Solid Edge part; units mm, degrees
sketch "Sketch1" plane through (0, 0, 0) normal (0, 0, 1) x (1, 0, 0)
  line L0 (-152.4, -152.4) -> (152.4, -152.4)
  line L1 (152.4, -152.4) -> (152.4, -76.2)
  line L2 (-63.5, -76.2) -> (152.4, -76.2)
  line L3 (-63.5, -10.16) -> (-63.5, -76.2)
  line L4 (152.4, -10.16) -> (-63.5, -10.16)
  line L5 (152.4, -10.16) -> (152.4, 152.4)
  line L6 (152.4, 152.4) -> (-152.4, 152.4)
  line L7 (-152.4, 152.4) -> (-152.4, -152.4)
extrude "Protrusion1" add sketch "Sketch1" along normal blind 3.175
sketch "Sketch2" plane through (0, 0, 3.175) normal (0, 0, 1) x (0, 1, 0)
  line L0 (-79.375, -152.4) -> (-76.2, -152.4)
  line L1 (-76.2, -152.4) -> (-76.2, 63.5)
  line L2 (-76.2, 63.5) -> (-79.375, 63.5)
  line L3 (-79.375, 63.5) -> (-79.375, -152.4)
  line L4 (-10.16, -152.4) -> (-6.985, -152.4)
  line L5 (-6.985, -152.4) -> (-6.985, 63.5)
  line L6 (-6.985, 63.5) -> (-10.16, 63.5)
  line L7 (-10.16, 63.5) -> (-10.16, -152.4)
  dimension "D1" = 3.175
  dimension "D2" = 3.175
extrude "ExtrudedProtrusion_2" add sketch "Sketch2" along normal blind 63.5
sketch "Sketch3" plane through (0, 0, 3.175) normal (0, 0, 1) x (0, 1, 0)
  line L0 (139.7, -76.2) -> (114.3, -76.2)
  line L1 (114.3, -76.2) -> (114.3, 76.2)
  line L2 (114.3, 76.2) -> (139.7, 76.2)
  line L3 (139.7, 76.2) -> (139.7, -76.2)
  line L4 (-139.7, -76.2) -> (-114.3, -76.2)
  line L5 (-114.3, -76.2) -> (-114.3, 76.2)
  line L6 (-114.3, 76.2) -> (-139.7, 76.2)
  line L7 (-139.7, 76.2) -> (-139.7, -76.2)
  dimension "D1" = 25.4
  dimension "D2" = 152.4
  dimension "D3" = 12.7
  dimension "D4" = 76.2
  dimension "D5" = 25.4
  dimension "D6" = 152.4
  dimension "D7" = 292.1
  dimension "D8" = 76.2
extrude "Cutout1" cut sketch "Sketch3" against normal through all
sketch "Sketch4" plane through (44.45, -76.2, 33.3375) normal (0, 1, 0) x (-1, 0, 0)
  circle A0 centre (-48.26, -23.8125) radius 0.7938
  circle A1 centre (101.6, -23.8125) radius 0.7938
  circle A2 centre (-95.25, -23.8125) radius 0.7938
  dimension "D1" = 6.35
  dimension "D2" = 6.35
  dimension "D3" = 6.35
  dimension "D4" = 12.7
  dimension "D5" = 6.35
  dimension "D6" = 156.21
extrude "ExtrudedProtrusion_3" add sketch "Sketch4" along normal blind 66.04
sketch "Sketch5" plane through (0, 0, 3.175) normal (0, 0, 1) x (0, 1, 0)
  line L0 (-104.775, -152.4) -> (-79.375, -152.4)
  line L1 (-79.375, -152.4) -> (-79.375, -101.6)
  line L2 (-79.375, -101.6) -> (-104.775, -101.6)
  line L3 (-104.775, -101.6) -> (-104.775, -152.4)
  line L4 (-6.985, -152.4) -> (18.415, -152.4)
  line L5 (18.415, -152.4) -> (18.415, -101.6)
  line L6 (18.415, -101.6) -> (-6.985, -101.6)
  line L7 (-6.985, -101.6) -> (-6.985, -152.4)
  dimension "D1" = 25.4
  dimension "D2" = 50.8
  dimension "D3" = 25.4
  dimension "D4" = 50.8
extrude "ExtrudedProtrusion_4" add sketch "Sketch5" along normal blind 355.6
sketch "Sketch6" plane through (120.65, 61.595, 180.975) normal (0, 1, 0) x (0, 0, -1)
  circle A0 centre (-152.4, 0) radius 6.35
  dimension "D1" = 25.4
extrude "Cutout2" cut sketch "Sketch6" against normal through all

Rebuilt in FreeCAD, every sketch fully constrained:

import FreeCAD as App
import Part
import Sketcher
Q = App.Units.Quantity

doc = App.newDocument("Part")
body = doc.addObject("PartDesign::Body", "Body")

# Sketch on XY plane
sketch1 = body.newObject("Sketcher::SketchObject", "Sketch")
sketch1.AttachmentSupport = (doc.getObject("XY_Plane"), [""])
sketch1.MapMode = "FlatFace"
sketch1.addGeometry([
    Part.LineSegment(App.Vector(-152.4, 152.4, 0), App.Vector(-152.4, -152.4, 0)),  # 0
    Part.LineSegment(App.Vector(-152.4, -152.4, 0), App.Vector(152.4, -152.4, 0)),  # 1
    Part.LineSegment(App.Vector(152.4, -152.4, 0), App.Vector(152.4, -76.2, 0)),  # 2
    Part.LineSegment(App.Vector(152.4, -76.2, 0), App.Vector(-63.5, -76.2, 0)),  # 3
    Part.LineSegment(App.Vector(-63.5, -76.2, 0), App.Vector(-63.5, -10.16, 0)),  # 4
    Part.LineSegment(App.Vector(-63.5, -10.16, 0), App.Vector(152.4, -10.16, 0)),  # 5
    Part.LineSegment(App.Vector(152.4, -10.16, 0), App.Vector(152.4, 152.4, 0)),  # 6
    Part.LineSegment(App.Vector(152.4, 152.4, 0), App.Vector(-152.4, 152.4, 0)),  # 7
], False)
sketch1.addConstraint([
    Sketcher.Constraint("Coincident", 0, 2, 1, 1),
    Sketcher.Constraint("Coincident", 1, 2, 2, 1),
    Sketcher.Constraint("Coincident", 2, 2, 3, 1),
    Sketcher.Constraint("Coincident", 3, 2, 4, 1),
    Sketcher.Constraint("Coincident", 4, 2, 5, 1),
    Sketcher.Constraint("Coincident", 5, 2, 6, 1),
    Sketcher.Constraint("Coincident", 6, 2, 7, 1),
    Sketcher.Constraint("Coincident", 7, 2, 0, 1),
    Sketcher.Constraint("Vertical", 0),
    Sketcher.Constraint("Horizontal", 1),
    Sketcher.Constraint("Vertical", 2),
    Sketcher.Constraint("Horizontal", 3),
    Sketcher.Constraint("Vertical", 4),
    Sketcher.Constraint("Horizontal", 5),
    Sketcher.Constraint("Vertical", 6),
    Sketcher.Constraint("Horizontal", 7),
    Sketcher.Constraint("Symmetric", 0, 2, 6, 2, -1, 1),
    Sketcher.Constraint("Vertical", 2, 2, 5, 2),
    Sketcher.Constraint("Equal", 7, 0),
    Sketcher.Constraint("DistanceX", 1, 1, 1, 2, Q("12 in")),
    Sketcher.Constraint("DistanceY", 2, 1, 2, 2, Q("3 in")),
    Sketcher.Constraint("DistanceX", 3, 2, 3, 1, Q("8.5 in")),
    Sketcher.Constraint("DistanceY", 4, 1, 4, 2, Q("2.6 in")),
])
pad1 = body.newObject("PartDesign::Pad", "Pad")
pad1.Profile = sketch1
pad1.Length = Q("0.125 in")

# Sketch on XY plane
sketch2 = body.newObject("Sketcher::SketchObject", "Sketch001")
sketch2.AttachmentSupport = (doc.getObject("XY_Plane"), [""])
sketch2.MapMode = "FlatFace"
sketch2.AttachmentOffset = App.Placement(App.Vector(0, 0, 0.125 * 25.4), App.Rotation())
sketch2.addGeometry([
    Part.LineSegment(App.Vector(-63.5, -79.375, 0), App.Vector(152.4, -79.375, 0)),  # 0
    Part.LineSegment(App.Vector(152.4, -79.375, 0), App.Vector(152.4, -76.2, 0)),  # 1
    Part.LineSegment(App.Vector(152.4, -76.2, 0), App.Vector(-63.5, -76.2, 0)),  # 2
    Part.LineSegment(App.Vector(-63.5, -76.2, 0), App.Vector(-63.5, -79.375, 0)),  # 3
    Part.LineSegment(App.Vector(-63.5, -10.16, 0), App.Vector(152.4, -10.16, 0)),  # 4
    Part.LineSegment(App.Vector(152.4, -10.16, 0), App.Vector(152.4, -6.985, 0)),  # 5
    Part.LineSegment(App.Vector(152.4, -6.985, 0), App.Vector(-63.5, -6.985, 0)),  # 6
    Part.LineSegment(App.Vector(-63.5, -6.985, 0), App.Vector(-63.5, -10.16, 0)),  # 7
], False)
sketch2.addConstraint([
    Sketcher.Constraint("Coincident", 0, 2, 1, 1),
    Sketcher.Constraint("Coincident", 1, 2, 2, 1),
    Sketcher.Constraint("Coincident", 2, 2, 3, 1),
    Sketcher.Constraint("Coincident", 3, 2, 0, 1),
    Sketcher.Constraint("Coincident", 4, 2, 5, 1),
    Sketcher.Constraint("Coincident", 5, 2, 6, 1),
    Sketcher.Constraint("Coincident", 6, 2, 7, 1),
    Sketcher.Constraint("Coincident", 7, 2, 4, 1),
    Sketcher.Constraint("Horizontal", 0),
    Sketcher.Constraint("Vertical", 1),
    Sketcher.Constraint("Horizontal", 2),
    Sketcher.Constraint("Vertical", 3),
    Sketcher.Constraint("Horizontal", 4),
    Sketcher.Constraint("Vertical", 5),
    Sketcher.Constraint("Horizontal", 6),
    Sketcher.Constraint("Vertical", 7),
    Sketcher.Constraint("Vertical", 1, 2, 4, 2),
    Sketcher.Constraint("Vertical", 3, 2, 6, 2),
    Sketcher.Constraint("Equal", 3, 5),
    Sketcher.Constraint("DistanceY", 1, 2, -1, 1, Q("3 in")),
    Sketcher.Constraint("DistanceX", 0, 1, 0, 2, Q("8.5 in")),
    Sketcher.Constraint("DistanceY", 5, 2, -1, 1, Q("0.275 in")),
    Sketcher.Constraint("DistanceX", -1, 1, 0, 2, Q("6 in")),
    Sketcher.Constraint("DistanceY", 4, 2, -1, 1, Q("0.4 in")),
])
pad2 = body.newObject("PartDesign::Pad", "Pad001")
pad2.Profile = sketch2
pad2.Length = Q("2.5 in")

# Sketch on XY plane
sketch3 = body.newObject("Sketcher::SketchObject", "Sketch002")
sketch3.AttachmentSupport = (doc.getObject("XY_Plane"), [""])
sketch3.MapMode = "FlatFace"
sketch3.AttachmentOffset = App.Placement(App.Vector(0, 0, 0.125 * 25.4), App.Rotation())
sketch3.addGeometry([
    Part.LineSegment(App.Vector(76.2, 114.3, 0), App.Vector(76.2, 139.7, 0)),  # 0
    Part.LineSegment(App.Vector(76.2, 139.7, 0), App.Vector(-76.2, 139.7, 0)),  # 1
    Part.LineSegment(App.Vector(-76.2, 139.7, 0), App.Vector(-76.2, 114.3, 0)),  # 2
    Part.LineSegment(App.Vector(-76.2, 114.3, 0), App.Vector(76.2, 114.3, 0)),  # 3
    Part.LineSegment(App.Vector(-76.2, -139.7, 0), App.Vector(76.2, -139.7, 0)),  # 4
    Part.LineSegment(App.Vector(76.2, -139.7, 0), App.Vector(76.2, -114.3, 0)),  # 5
    Part.LineSegment(App.Vector(76.2, -114.3, 0), App.Vector(-76.2, -114.3, 0)),  # 6
    Part.LineSegment(App.Vector(-76.2, -114.3, 0), App.Vector(-76.2, -139.7, 0)),  # 7
], False)
sketch3.addConstraint([
    Sketcher.Constraint("Coincident", 0, 2, 1, 1),
    Sketcher.Constraint("Coincident", 1, 2, 2, 1),
    Sketcher.Constraint("Coincident", 2, 2, 3, 1),
    Sketcher.Constraint("Coincident", 3, 2, 0, 1),
    Sketcher.Constraint("Coincident", 4, 2, 5, 1),
    Sketcher.Constraint("Coincident", 5, 2, 6, 1),
    Sketcher.Constraint("Coincident", 6, 2, 7, 1),
    Sketcher.Constraint("Coincident", 7, 2, 4, 1),
    Sketcher.Constraint("Vertical", 0),
    Sketcher.Constraint("Horizontal", 1),
    Sketcher.Constraint("Vertical", 2),
    Sketcher.Constraint("Horizontal", 3),
    Sketcher.Constraint("Horizontal", 4),
    Sketcher.Constraint("Vertical", 5),
    Sketcher.Constraint("Horizontal", 6),
    Sketcher.Constraint("Vertical", 7),
    Sketcher.Constraint("Symmetric", 1, 2, 4, 2, -1, 1),
    Sketcher.Constraint("Symmetric", 3, 2, 6, 2, -1, 1),
    Sketcher.Constraint("Vertical", 3, 2, 4, 2),
    Sketcher.Constraint("DistanceY", -1, 1, 2, 2, Q("4.5 in")),
    Sketcher.Constraint("DistanceX", 1, 2, 1, 1, Q("6 in")),
    Sketcher.Constraint("DistanceY", 0, 1, 0, 2, Q("1 in")),
])
pocket1 = body.newObject("PartDesign::Pocket", "Pocket")
pocket1.Profile = sketch3
pocket1.Type = "ThroughAll"

# Sketch on XZ plane
sketch4 = body.newObject("Sketcher::SketchObject", "Sketch003")
sketch4.AttachmentSupport = (doc.getObject("XZ_Plane"), [""])
sketch4.MapMode = "FlatFace"
sketch4.AttachmentOffset = App.Placement(App.Vector(0, 0, 3 * 25.4), App.Rotation())
sketch4.addGeometry([
    Part.Circle(App.Vector(92.71, 9.525, 0), App.Vector(0, 0, 1), 0.7938),
    Part.Circle(App.Vector(-57.15, 9.525, 0), App.Vector(0, 0, 1), 0.7938),
    Part.Circle(App.Vector(139.7, 9.525, 0), App.Vector(0, 0, 1), 0.7938),
], False)
sketch4.addConstraint([
    Sketcher.Constraint("Equal", 0, 1),
    Sketcher.Constraint("Equal", 1, 2),
    Sketcher.Constraint("Horizontal", 0, 3, 1, 3),
    Sketcher.Constraint("Horizontal", 1, 3, 2, 3),
    Sketcher.Constraint("Diameter", 0, Q("0.0625 in")),
    Sketcher.Constraint("DistanceX", -1, 1, 2, 3, Q("5.5 in")),
    Sketcher.Constraint("DistanceX", 1, 3, 0, 3, Q("5.9 in")),
    Sketcher.Constraint("DistanceX", -1, 1, 0, 3, Q("3.65 in")),
    Sketcher.Constraint("DistanceY", -1, 1, 0, 3, Q("0.375 in")),
])
pad3 = body.newObject("PartDesign::Pad", "Pad002")
pad3.Profile = sketch4
pad3.Length = Q("2.6 in")
pad3.Reversed = True

# Sketch on XY plane
sketch5 = body.newObject("Sketcher::SketchObject", "Sketch004")
sketch5.AttachmentSupport = (doc.getObject("XY_Plane"), [""])
sketch5.MapMode = "FlatFace"
sketch5.AttachmentOffset = App.Placement(App.Vector(0, 0, 0.125 * 25.4), App.Rotation())
sketch5.addGeometry([
    Part.LineSegment(App.Vector(101.6, -104.775, 0), App.Vector(152.4, -104.775, 0)),  # 0
    Part.LineSegment(App.Vector(152.4, -104.775, 0), App.Vector(152.4, -79.375, 0)),  # 1
    Part.LineSegment(App.Vector(152.4, -79.375, 0), App.Vector(101.6, -79.375, 0)),  # 2
    Part.LineSegment(App.Vector(101.6, -79.375, 0), App.Vector(101.6, -104.775, 0)),  # 3
    Part.LineSegment(App.Vector(101.6, -6.985, 0), App.Vector(152.4, -6.985, 0)),  # 4
    Part.LineSegment(App.Vector(152.4, -6.985, 0), App.Vector(152.4, 18.415, 0)),  # 5
    Part.LineSegment(App.Vector(152.4, 18.415, 0), App.Vector(101.6, 18.415, 0)),  # 6
    Part.LineSegment(App.Vector(101.6, 18.415, 0), App.Vector(101.6, -6.985, 0)),  # 7
], False)
sketch5.addConstraint([
    Sketcher.Constraint("Coincident", 0, 2, 1, 1),
    Sketcher.Constraint("Coincident", 1, 2, 2, 1),
    Sketcher.Constraint("Coincident", 2, 2, 3, 1),
    Sketcher.Constraint("Coincident", 3, 2, 0, 1),
    Sketcher.Constraint("Coincident", 4, 2, 5, 1),
    Sketcher.Constraint("Coincident", 5, 2, 6, 1),
    Sketcher.Constraint("Coincident", 6, 2, 7, 1),
    Sketcher.Constraint("Coincident", 7, 2, 4, 1),
    Sketcher.Constraint("Horizontal", 0),
    Sketcher.Constraint("Vertical", 1),
    Sketcher.Constraint("Horizontal", 2),
    Sketcher.Constraint("Vertical", 3),
    Sketcher.Constraint("Horizontal", 4),
    Sketcher.Constraint("Vertical", 5),
    Sketcher.Constraint("Horizontal", 6),
    Sketcher.Constraint("Vertical", 7),
    Sketcher.Constraint("Vertical", 1, 2, 4, 2),
    Sketcher.Constraint("Vertical", 3, 2, 6, 2),
    Sketcher.Constraint("Equal", 3, 5),
    Sketcher.Constraint("DistanceX", 0, 1, 0, 2, Q("2 in")),
    Sketcher.Constraint("DistanceY", 1, 1, 1, 2, Q("1 in")),
    Sketcher.Constraint("DistanceY", 0, 2, -1, 1, Q("4.125 in")),
    Sketcher.Constraint("DistanceY", -1, 1, 5, 2, Q("0.725 in")),
    Sketcher.Constraint("DistanceX", -1, 1, 0, 2, Q("6 in")),
])
pad4 = body.newObject("PartDesign::Pad", "Pad003")
pad4.Profile = sketch5
pad4.Length = Q("14 in")

# Sketch on XZ plane
sketch6 = body.newObject("Sketcher::SketchObject", "Sketch005")
sketch6.AttachmentSupport = (doc.getObject("XZ_Plane"), [""])
sketch6.MapMode = "FlatFace"
sketch6.AttachmentOffset = App.Placement(App.Vector(0, 0, -2.425 * 25.4), App.Rotation())
sketch6.addGeometry(Part.Circle(App.Vector(120.65, 333.375, 0), App.Vector(0, 0, 1), 6.35), False)
sketch6.addConstraint([
    Sketcher.Constraint("Diameter", 0, Q("0.5 in")),
    Sketcher.Constraint("DistanceX", -1, 1, 0, 3, Q("4.75 in")),
    Sketcher.Constraint("DistanceY", -1, 1, 0, 3, Q("13.125 in")),
])
pocket2 = body.newObject("PartDesign::Pocket", "Pocket001")
pocket2.Profile = sketch6
pocket2.Type = "ThroughAll"
pocket2.Reversed = True

doc.recompute()
